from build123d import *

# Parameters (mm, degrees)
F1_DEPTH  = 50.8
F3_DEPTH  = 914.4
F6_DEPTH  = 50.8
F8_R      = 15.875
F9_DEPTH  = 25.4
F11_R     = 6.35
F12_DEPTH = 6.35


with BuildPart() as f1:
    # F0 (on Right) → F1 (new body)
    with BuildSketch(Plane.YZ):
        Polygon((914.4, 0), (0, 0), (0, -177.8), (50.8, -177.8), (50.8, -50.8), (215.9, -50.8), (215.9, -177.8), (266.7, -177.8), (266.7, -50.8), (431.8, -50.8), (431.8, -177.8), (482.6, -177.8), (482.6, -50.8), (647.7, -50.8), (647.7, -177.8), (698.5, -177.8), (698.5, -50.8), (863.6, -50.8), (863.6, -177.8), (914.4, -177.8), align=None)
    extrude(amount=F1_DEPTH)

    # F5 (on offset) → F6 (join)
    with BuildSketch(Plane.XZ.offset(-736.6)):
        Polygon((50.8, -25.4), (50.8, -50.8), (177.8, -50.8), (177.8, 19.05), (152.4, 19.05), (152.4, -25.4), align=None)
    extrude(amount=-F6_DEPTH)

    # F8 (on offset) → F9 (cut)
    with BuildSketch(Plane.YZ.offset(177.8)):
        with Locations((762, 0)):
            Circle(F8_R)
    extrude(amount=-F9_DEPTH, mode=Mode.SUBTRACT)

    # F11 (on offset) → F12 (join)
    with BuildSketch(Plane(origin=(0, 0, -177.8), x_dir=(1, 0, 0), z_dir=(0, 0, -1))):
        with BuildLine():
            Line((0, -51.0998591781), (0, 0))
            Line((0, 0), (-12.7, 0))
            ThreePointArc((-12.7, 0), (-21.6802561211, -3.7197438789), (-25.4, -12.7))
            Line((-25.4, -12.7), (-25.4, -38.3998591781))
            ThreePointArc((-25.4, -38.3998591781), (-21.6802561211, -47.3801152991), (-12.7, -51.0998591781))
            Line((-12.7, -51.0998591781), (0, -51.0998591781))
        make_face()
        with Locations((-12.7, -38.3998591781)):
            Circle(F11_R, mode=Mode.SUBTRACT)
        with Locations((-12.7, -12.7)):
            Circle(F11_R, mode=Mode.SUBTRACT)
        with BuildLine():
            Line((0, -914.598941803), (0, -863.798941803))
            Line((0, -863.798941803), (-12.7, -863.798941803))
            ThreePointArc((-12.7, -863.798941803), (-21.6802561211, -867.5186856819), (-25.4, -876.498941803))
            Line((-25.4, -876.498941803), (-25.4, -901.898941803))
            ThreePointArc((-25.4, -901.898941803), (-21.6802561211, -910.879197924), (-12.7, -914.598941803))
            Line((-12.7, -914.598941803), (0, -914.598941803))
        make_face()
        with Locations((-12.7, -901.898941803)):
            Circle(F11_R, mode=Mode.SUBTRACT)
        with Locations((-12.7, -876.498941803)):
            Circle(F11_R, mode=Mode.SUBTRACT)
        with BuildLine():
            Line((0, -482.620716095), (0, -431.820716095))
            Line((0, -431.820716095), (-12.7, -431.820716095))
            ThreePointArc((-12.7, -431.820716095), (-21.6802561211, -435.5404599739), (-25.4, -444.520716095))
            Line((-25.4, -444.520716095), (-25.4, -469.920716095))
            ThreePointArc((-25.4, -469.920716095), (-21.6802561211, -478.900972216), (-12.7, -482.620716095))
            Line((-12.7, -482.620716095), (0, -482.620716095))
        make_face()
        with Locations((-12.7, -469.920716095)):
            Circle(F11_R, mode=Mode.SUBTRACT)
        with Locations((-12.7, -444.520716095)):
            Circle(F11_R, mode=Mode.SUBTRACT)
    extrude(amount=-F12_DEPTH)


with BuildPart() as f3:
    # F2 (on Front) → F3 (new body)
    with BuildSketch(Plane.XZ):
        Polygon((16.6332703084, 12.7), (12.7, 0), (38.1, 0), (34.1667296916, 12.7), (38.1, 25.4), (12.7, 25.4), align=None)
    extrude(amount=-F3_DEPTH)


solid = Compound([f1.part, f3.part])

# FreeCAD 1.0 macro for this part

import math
import FreeCAD as App
import Part
import Sketcher
from FreeCAD import Vector
Q = App.Units.Quantity

doc = App.newDocument("Part")
params = doc.addObject("Spreadsheet::Sheet", "Params")
for row, (alias, value) in enumerate([
    ("sketch1_width", "36 in"),
    ("sketch1_width2", "2 in"),
    ("sketch1_height", "7 in"),
    ("sketch1_height2", "5 in"),
    ("pad1_length", "2 in"),
    ("sketch2_width", "5 in"),
    ("sketch2_width2", "1 in"),
    ("sketch2_height", "2.75 in"),
    ("pad2_length", "2 in"),
    ("sketch3_diameter", "1.25 in"),
    ("pocket1_length", "1 in"),
    ("sketch4_diameter", "0.5 in"),
    ("sketch4_radius", "0.5 in"),
    ("sketch4_height", "2 in"),
    ("sketch4_width", "0.5 in"),
    ("pad3_length", "0.25 in"),
    ("sketch5_width", "1 in"),
    ("pad4_length", "36 in"),
], start=1):
    params.set(f"A{row}", alias)
    params.set(f"B{row}", "=" + value)
    params.setAlias(f"B{row}", alias)

body = doc.addObject("PartDesign::Body", "Body")

# Sketch on YZ plane
sketch1 = doc.addObject("Sketcher::SketchObject", "Sketch")
body.addObject(sketch1)
sketch1.AttachmentSupport = (doc.YZ_Plane, [""])
sketch1.MapMode = "FlatFace"
sketch1.addGeometry([
    Part.LineSegment(Vector(914.4, 0, 0), Vector(0, 0, 0)),  # 0
    Part.LineSegment(Vector(0, 0, 0), Vector(0, -177.8, 0)),  # 1
    Part.LineSegment(Vector(0, -177.8, 0), Vector(50.8, -177.8, 0)),  # 2
    Part.LineSegment(Vector(50.8, -177.8, 0), Vector(50.8, -50.8, 0)),  # 3
    Part.LineSegment(Vector(50.8, -50.8, 0), Vector(215.9, -50.8, 0)),  # 4
    Part.LineSegment(Vector(215.9, -50.8, 0), Vector(215.9, -177.8, 0)),  # 5
    Part.LineSegment(Vector(215.9, -177.8, 0), Vector(266.7, -177.8, 0)),  # 6
    Part.LineSegment(Vector(266.7, -177.8, 0), Vector(266.7, -50.8, 0)),  # 7
    Part.LineSegment(Vector(266.7, -50.8, 0), Vector(431.8, -50.8, 0)),  # 8
    Part.LineSegment(Vector(431.8, -50.8, 0), Vector(431.8, -177.8, 0)),  # 9
    Part.LineSegment(Vector(431.8, -177.8, 0), Vector(482.6, -177.8, 0)),  # 10
    Part.LineSegment(Vector(482.6, -177.8, 0), Vector(482.6, -50.8, 0)),  # 11
    Part.LineSegment(Vector(482.6, -50.8, 0), Vector(647.7, -50.8, 0)),  # 12
    Part.LineSegment(Vector(647.7, -50.8, 0), Vector(647.7, -177.8, 0)),  # 13
    Part.LineSegment(Vector(647.7, -177.8, 0), Vector(698.5, -177.8, 0)),  # 14
    Part.LineSegment(Vector(698.5, -177.8, 0), Vector(698.5, -50.8, 0)),  # 15
    Part.LineSegment(Vector(698.5, -50.8, 0), Vector(863.6, -50.8, 0)),  # 16
    Part.LineSegment(Vector(863.6, -50.8, 0), Vector(863.6, -177.8, 0)),  # 17
    Part.LineSegment(Vector(863.6, -177.8, 0), Vector(914.4, -177.8, 0)),  # 18
    Part.LineSegment(Vector(914.4, -177.8, 0), Vector(914.4, 0, 0)),  # 19
], False)
sketch1.addConstraint([
    Sketcher.Constraint("Coincident", 0, 2, 1, 1),
    Sketcher.Constraint("Coincident", 1, 2, 2, 1),
    Sketcher.Constraint("Coincident", 2, 2, 3, 1),
    Sketcher.Constraint("Coincident", 3, 2, 4, 1),
    Sketcher.Constraint("Coincident", 4, 2, 5, 1),
    Sketcher.Constraint("Coincident", 5, 2, 6, 1),
    Sketcher.Constraint("Coincident", 6, 2, 7, 1),
    Sketcher.Constraint("Coincident", 7, 2, 8, 1),
    Sketcher.Constraint("Coincident", 8, 2, 9, 1),
    Sketcher.Constraint("Coincident", 9, 2, 10, 1),
    Sketcher.Constraint("Coincident", 10, 2, 11, 1),
    Sketcher.Constraint("Coincident", 11, 2, 12, 1),
    Sketcher.Constraint("Coincident", 12, 2, 13, 1),
    Sketcher.Constraint("Coincident", 13, 2, 14, 1),
    Sketcher.Constraint("Coincident", 14, 2, 15, 1),
    Sketcher.Constraint("Coincident", 15, 2, 16, 1),
    Sketcher.Constraint("Coincident", 16, 2, 17, 1),
    Sketcher.Constraint("Coincident", 17, 2, 18, 1),
    Sketcher.Constraint("Coincident", 18, 2, 19, 1),
    Sketcher.Constraint("Coincident", 19, 2, 0, 1),
    Sketcher.Constraint("Horizontal", 0),
    Sketcher.Constraint("Vertical", 1),
    Sketcher.Constraint("Horizontal", 2),
    Sketcher.Constraint("Vertical", 3),
    Sketcher.Constraint("Horizontal", 4),
    Sketcher.Constraint("Vertical", 5),
    Sketcher.Constraint("Horizontal", 6),
    Sketcher.Constraint("Vertical", 7),
    Sketcher.Constraint("Horizontal", 8),
    Sketcher.Constraint("Vertical", 9),
    Sketcher.Constraint("Horizontal", 10),
    Sketcher.Constraint("Vertical", 11),
    Sketcher.Constraint("Horizontal", 12),
    Sketcher.Constraint("Vertical", 13),
    Sketcher.Constraint("Horizontal", 14),
    Sketcher.Constraint("Vertical", 15),
    Sketcher.Constraint("Horizontal", 16),
    Sketcher.Constraint("Vertical", 17),
    Sketcher.Constraint("Horizontal", 18),
    Sketcher.Constraint("Vertical", 19),
    Sketcher.Constraint("Coincident", 0, 2, -1, 1),
    Sketcher.Constraint("Horizontal", 2, 2, 5, 2),
    Sketcher.Constraint("Horizontal", 4, 2, 7, 2),
    Sketcher.Constraint("Horizontal", 6, 2, 9, 2),
    Sketcher.Constraint("Horizontal", 8, 2, 11, 2),
    Sketcher.Constraint("Horizontal", 10, 2, 13, 2),
    Sketcher.Constraint("Horizontal", 12, 2, 15, 2),
    Sketcher.Constraint("Horizontal", 14, 2, 17, 2),
    Sketcher.Constraint("Equal", 2, 6),
    Sketcher.Constraint("Equal", 4, 8),
    Sketcher.Constraint("Equal", 6, 10),
    Sketcher.Constraint("Equal", 8, 12),
    Sketcher.Constraint("Equal", 10, 14),
    Sketcher.Constraint("Equal", 12, 16),
    Sketcher.Constraint("Equal", 14, 18),
    Sketcher.Constraint("DistanceX", 0, 2, 0, 1, Q("36 in")),
    Sketcher.Constraint("DistanceX", 2, 1, 2, 2, Q("2 in")),
    Sketcher.Constraint("DistanceY", 1, 2, 1, 1, Q("7 in")),
    Sketcher.Constraint("DistanceY", 3, 1, 3, 2, Q("5 in")),
])
sketch1.setExpression("Constraints[55]", "Params.sketch1_width")
sketch1.setExpression("Constraints[56]", "Params.sketch1_width2")
sketch1.setExpression("Constraints[57]", "Params.sketch1_height")
sketch1.setExpression("Constraints[58]", "Params.sketch1_height2")
pad1 = doc.addObject("PartDesign::Pad", "Pad")
body.addObject(pad1)
pad1.Profile = sketch1
pad1.setExpression("Length", "Params.pad1_length")

# Sketch on XZ plane
sketch2 = doc.addObject("Sketcher::SketchObject", "Sketch001")
body.addObject(sketch2)
sketch2.AttachmentSupport = (doc.XZ_Plane, [""])
sketch2.MapMode = "FlatFace"
sketch2.AttachmentOffset = App.Placement(Vector(0, 0, -29 * 25.4), App.Rotation())
sketch2.addGeometry([
    Part.LineSegment(Vector(50.8, -25.4, 0), Vector(50.8, -50.8, 0)),  # 0
    Part.LineSegment(Vector(50.8, -50.8, 0), Vector(177.8, -50.8, 0)),  # 1
    Part.LineSegment(Vector(177.8, -50.8, 0), Vector(177.8, 19.05, 0)),  # 2
    Part.LineSegment(Vector(177.8, 19.05, 0), Vector(152.4, 19.05, 0)),  # 3
    Part.LineSegment(Vector(152.4, 19.05, 0), Vector(152.4, -25.4, 0)),  # 4
    Part.LineSegment(Vector(152.4, -25.4, 0), Vector(50.8, -25.4, 0)),  # 5
], False)
sketch2.addConstraint([
    Sketcher.Constraint("Coincident", 0, 2, 1, 1),
    Sketcher.Constraint("Coincident", 1, 2, 2, 1),
    Sketcher.Constraint("Coincident", 2, 2, 3, 1),
    Sketcher.Constraint("Coincident", 3, 2, 4, 1),
    Sketcher.Constraint("Coincident", 4, 2, 5, 1),
    Sketcher.Constraint("Coincident", 5, 2, 0, 1),
    Sketcher.Constraint("Vertical", 0),
    Sketcher.Constraint("Horizontal", 1),
    Sketcher.Constraint("Vertical", 2),
    Sketcher.Constraint("Horizontal", 3),
    Sketcher.Constraint("Vertical", 4),
    Sketcher.Constraint("Horizontal", 5),
    Sketcher.Constraint("Equal", 3, 0),
    Sketcher.Constraint("DistanceX", 1, 1, 1, 2, Q("5 in")),
    Sketcher.Constraint("DistanceX", 3, 2, 3, 1, Q("1 in")),
    Sketcher.Constraint("DistanceX", -1, 1, 0, 2, Q("2 in")),
    Sketcher.Constraint("DistanceY", 0, 2, -1, 1, Q("2 in")),
    Sketcher.Constraint("DistanceY", 2, 1, 2, 2, Q("2.75 in")),
])
sketch2.setExpression("Constraints[13]", "Params.sketch2_width")
sketch2.setExpression("Constraints[14]", "Params.sketch2_width2")
sketch2.setExpression("Constraints[17]", "Params.sketch2_height")
pad2 = doc.addObject("PartDesign::Pad", "Pad001")
body.addObject(pad2)
pad2.Profile = sketch2
pad2.setExpression("Length", "Params.pad2_length")
pad2.Reversed = True

# Sketch on YZ plane
sketch3 = doc.addObject("Sketcher::SketchObject", "Sketch002")
body.addObject(sketch3)
sketch3.AttachmentSupport = (doc.YZ_Plane, [""])
sketch3.MapMode = "FlatFace"
sketch3.AttachmentOffset = App.Placement(Vector(0, 0, 7 * 25.4), App.Rotation())
sketch3.addGeometry(Part.Circle(Vector(762, 0, 0), Vector(0, 0, 1), 15.875), False)
sketch3.addConstraint([
    Sketcher.Constraint("PointOnObject", 0, 3, -1),
    Sketcher.Constraint("Diameter", 0, Q("1.25 in")),
    Sketcher.Constraint("DistanceX", -1, 1, 0, 3, Q("30 in")),
])
sketch3.setExpression("Constraints[1]", "Params.sketch3_diameter")
pocket1 = doc.addObject("PartDesign::Pocket", "Pocket")
body.addObject(pocket1)
pocket1.Profile = sketch3
pocket1.setExpression("Length", "Params.pocket1_length")

# Sketch on XY plane
sketch4 = doc.addObject("Sketcher::SketchObject", "Sketch003")
body.addObject(sketch4)
sketch4.AttachmentSupport = (doc.XY_Plane, [""])
sketch4.MapMode = "FlatFace"
sketch4.AttachmentOffset = App.Placement(Vector(0, 0, -7 * 25.4), App.Rotation())
sketch4.addGeometry([
    Part.LineSegment(Vector(0, 51.099859, 0), Vector(0, 0, 0)),  # 0
    Part.LineSegment(Vector(0, 0, 0), Vector(-12.7, 0, 0)),  # 1
    Part.ArcOfCircle(Part.Circle(Vector(-12.7, 12.7, 0), Vector(0, 0, 1), 12.7), math.radians(180), math.radians(270)),  # 2
    Part.LineSegment(Vector(-25.4, 12.7, 0), Vector(-25.4, 38.399859, 0)),  # 3
    Part.ArcOfCircle(Part.Circle(Vector(-12.7, 38.399859, 0), Vector(0, 0, 1), 12.7), math.radians(90), math.radians(180)),  # 4
    Part.LineSegment(Vector(-12.7, 51.099859, 0), Vector(0, 51.099859, 0)),  # 5
    Part.Circle(Vector(-12.7, 38.399859, 0), Vector(0, 0, 1), 6.35),  # 6
    Part.Circle(Vector(-12.7, 12.7, 0), Vector(0, 0, 1), 6.35),  # 7
    Part.LineSegment(Vector(0, 914.598942, 0), Vector(0, 863.798942, 0)),  # 8
    Part.LineSegment(Vector(0, 863.798942, 0), Vector(-12.7, 863.798942, 0)),  # 9
    Part.ArcOfCircle(Part.Circle(Vector(-12.7, 876.498942, 0), Vector(0, 0, 1), 12.7), math.radians(180), math.radians(270)),  # 10
    Part.LineSegment(Vector(-25.4, 876.498942, 0), Vector(-25.4, 901.898942, 0)),  # 11
    Part.ArcOfCircle(Part.Circle(Vector(-12.7, 901.898942, 0), Vector(0, 0, 1), 12.7), math.radians(90), math.radians(180)),  # 12
    Part.LineSegment(Vector(-12.7, 914.598942, 0), Vector(0, 914.598942, 0)),  # 13
    Part.Circle(Vector(-12.7, 901.898942, 0), Vector(0, 0, 1), 6.35),  # 14
    Part.Circle(Vector(-12.7, 876.498942, 0), Vector(0, 0, 1), 6.35),  # 15
    Part.LineSegment(Vector(0, 482.620716, 0), Vector(0, 431.820716, 0)),  # 16
    Part.LineSegment(Vector(0, 431.820716, 0), Vector(-12.7, 431.820716, 0)),  # 17
    Part.ArcOfCircle(Part.Circle(Vector(-12.7, 444.520716, 0), Vector(0, 0, 1), 12.7), math.radians(180), math.radians(270)),  # 18
    Part.LineSegment(Vector(-25.4, 444.520716, 0), Vector(-25.4, 469.920716, 0)),  # 19
    Part.ArcOfCircle(Part.Circle(Vector(-12.7, 469.920716, 0), Vector(0, 0, 1), 12.7), math.radians(90), math.radians(180)),  # 20
    Part.LineSegment(Vector(-12.7, 482.620716, 0), Vector(0, 482.620716, 0)),  # 21
    Part.Circle(Vector(-12.7, 469.920716, 0), Vector(0, 0, 1), 6.35),  # 22
    Part.Circle(Vector(-12.7, 444.520716, 0), Vector(0, 0, 1), 6.35),  # 23
], False)
sketch4.addConstraint([
    Sketcher.Constraint("Coincident", 0, 2, 1, 1),
    Sketcher.Constraint("Tangent", 1, 2, 2, 2),
    Sketcher.Constraint("Tangent", 2, 1, 3, 1),
    Sketcher.Constraint("Tangent", 3, 2, 4, 2),
    Sketcher.Constraint("Tangent", 4, 1, 5, 1),
    Sketcher.Constraint("Coincident", 5, 2, 0, 1),
    Sketcher.Constraint("Coincident", 8, 2, 9, 1),
    Sketcher.Constraint("Tangent", 9, 2, 10, 2),
    Sketcher.Constraint("Tangent", 10, 1, 11, 1),
    Sketcher.Constraint("Tangent", 11, 2, 12, 2),
    Sketcher.Constraint("Tangent", 12, 1, 13, 1),
    Sketcher.Constraint("Coincident", 13, 2, 8, 1),
    Sketcher.Constraint("Coincident", 16, 2, 17, 1),
    Sketcher.Constraint("Tangent", 17, 2, 18, 2),
    Sketcher.Constraint("Tangent", 18, 1, 19, 1),
    Sketcher.Constraint("Tangent", 19, 2, 20, 2),
    Sketcher.Constraint("Tangent", 20, 1, 21, 1),
    Sketcher.Constraint("Coincident", 21, 2, 16, 1),
    Sketcher.Constraint("Vertical", 0),
    Sketcher.Constraint("Horizontal", 1),
    Sketcher.Constraint("Vertical", 3),
    Sketcher.Constraint("Horizontal", 5),
    Sketcher.Constraint("Vertical", 8),
    Sketcher.Constraint("Horizontal", 9),
    Sketcher.Constraint("Vertical", 11),
    Sketcher.Constraint("Horizontal", 13),
    Sketcher.Constraint("Vertical", 16),
    Sketcher.Constraint("Horizontal", 17),
    Sketcher.Constraint("Vertical", 19),
    Sketcher.Constraint("Horizontal", 21),
    Sketcher.Constraint("Coincident", 0, 2, -1, 1),
    Sketcher.Constraint("Coincident", 6, 3, 4, 3),
    Sketcher.Constraint("Coincident", 7, 3, 2, 3),
    Sketcher.Constraint("Coincident", 14, 3, 12, 3),
    Sketcher.Constraint("Coincident", 15, 3, 10, 3),
    Sketcher.Constraint("Coincident", 22, 3, 20, 3),
    Sketcher.Constraint("Coincident", 23, 3, 18, 3),
    Sketcher.Constraint("Equal", 2, 4),
    Sketcher.Constraint("Equal", 6, 7),
    Sketcher.Constraint("Equal", 4, 10),
    Sketcher.Constraint("Equal", 10, 12),
    Sketcher.Constraint("Equal", 7, 14),
    Sketcher.Constraint("Equal", 14, 15),
    Sketcher.Constraint("Equal", 12, 18),
    Sketcher.Constraint("Equal", 18, 20),
    Sketcher.Constraint("Equal", 15, 22),
    Sketcher.Constraint("Equal", 22, 23),
    Sketcher.Constraint("PointOnObject", 8, 2, -2),
    Sketcher.Constraint("PointOnObject", 16, 2, -2),
    Sketcher.Constraint("Vertical", 7, 3, 10, 3),
    Sketcher.Constraint("Vertical", 15, 3, 18, 3),
    Sketcher.Constraint("Equal", 8, 16),
    Sketcher.Constraint("Diameter", 6, Q("0.5 in")),
    Sketcher.Constraint("Radius", 2, Q("0.5 in")),
    Sketcher.Constraint("DistanceY", 8, 2, 8, 1, Q("2 in")),
    Sketcher.Constraint("DistanceX", 1, 2, 1, 1, Q("0.5 in")),
    Sketcher.Constraint("DistanceY", 0, 2, 0, 1, 51.099859),
    Sketcher.Constraint("DistanceY", -1, 1, 10, 3, 876.498942),
    Sketcher.Constraint("DistanceY", -1, 1, 18, 3, 444.520716),
])
sketch4.setExpression("Constraints[52]", "Params.sketch4_diameter")
sketch4.setExpression("Constraints[53]", "Params.sketch4_radius")
sketch4.setExpression("Constraints[54]", "Params.sketch4_height")
sketch4.setExpression("Constraints[55]", "Params.sketch4_width")
pad3 = doc.addObject("PartDesign::Pad", "Pad002")
body.addObject(pad3)
pad3.Profile = sketch4
pad3.setExpression("Length", "Params.pad3_length")
body2 = doc.addObject("PartDesign::Body", "Body001")

# Sketch on XZ plane
sketch5 = doc.addObject("Sketcher::SketchObject", "Sketch004")
body2.addObject(sketch5)
sketch5.AttachmentSupport = (doc.getObject("XZ_Plane001"), [""])
sketch5.MapMode = "FlatFace"
sketch5.addGeometry([
    Part.LineSegment(Vector(16.63327, 12.7, 0), Vector(12.7, 0, 0)),  # 0
    Part.LineSegment(Vector(12.7, 0, 0), Vector(38.1, 0, 0)),  # 1
    Part.LineSegment(Vector(38.1, 0, 0), Vector(34.16673, 12.7, 0)),  # 2
    Part.LineSegment(Vector(34.16673, 12.7, 0), Vector(38.1, 25.4, 0)),  # 3
    Part.LineSegment(Vector(38.1, 25.4, 0), Vector(12.7, 25.4, 0)),  # 4
    Part.LineSegment(Vector(12.7, 25.4, 0), Vector(16.63327, 12.7, 0)),  # 5
], False)
sketch5.addConstraint([
    Sketcher.Constraint("Coincident", 0, 2, 1, 1),
    Sketcher.Constraint("Coincident", 1, 2, 2, 1),
    Sketcher.Constraint("Coincident", 2, 2, 3, 1),
    Sketcher.Constraint("Coincident", 3, 2, 4, 1),
    Sketcher.Constraint("Coincident", 4, 2, 5, 1),
    Sketcher.Constraint("Coincident", 5, 2, 0, 1),
    Sketcher.Constraint("Horizontal", 1),
    Sketcher.Constraint("Horizontal", 4),
    Sketcher.Constraint("PointOnObject", 0, 2, -1),
    Sketcher.Constraint("Parallel", 0, 3),
    Sketcher.Constraint("Parallel", 2, 5),
    Sketcher.Constraint("Horizontal", 2, 2, 5, 2),
    Sketcher.Constraint("Vertical", 1, 2, 3, 2),
    Sketcher.Constraint("Vertical", 0, 2, 4, 2),
    Sketcher.Constraint("DistanceX", 1, 1, 1, 2, Q("1 in")),
    Sketcher.Constraint("DistanceY", -1, 1, 3, 2, Q("1 in")),
    Sketcher.Constraint("DistanceX", -1, 1, 0, 2, Q("0.5 in")),
    Sketcher.Constraint("DistanceX", -1, 1, 2, 2, 34.16673),
])
sketch5.setExpression("Constraints[14]", "Params.sketch5_width")
pad4 = doc.addObject("PartDesign::Pad", "Pad003")
body2.addObject(pad4)
pad4.Profile = sketch5
pad4.setExpression("Length", "Params.pad4_length")
pad4.Reversed = True

doc.recompute()
